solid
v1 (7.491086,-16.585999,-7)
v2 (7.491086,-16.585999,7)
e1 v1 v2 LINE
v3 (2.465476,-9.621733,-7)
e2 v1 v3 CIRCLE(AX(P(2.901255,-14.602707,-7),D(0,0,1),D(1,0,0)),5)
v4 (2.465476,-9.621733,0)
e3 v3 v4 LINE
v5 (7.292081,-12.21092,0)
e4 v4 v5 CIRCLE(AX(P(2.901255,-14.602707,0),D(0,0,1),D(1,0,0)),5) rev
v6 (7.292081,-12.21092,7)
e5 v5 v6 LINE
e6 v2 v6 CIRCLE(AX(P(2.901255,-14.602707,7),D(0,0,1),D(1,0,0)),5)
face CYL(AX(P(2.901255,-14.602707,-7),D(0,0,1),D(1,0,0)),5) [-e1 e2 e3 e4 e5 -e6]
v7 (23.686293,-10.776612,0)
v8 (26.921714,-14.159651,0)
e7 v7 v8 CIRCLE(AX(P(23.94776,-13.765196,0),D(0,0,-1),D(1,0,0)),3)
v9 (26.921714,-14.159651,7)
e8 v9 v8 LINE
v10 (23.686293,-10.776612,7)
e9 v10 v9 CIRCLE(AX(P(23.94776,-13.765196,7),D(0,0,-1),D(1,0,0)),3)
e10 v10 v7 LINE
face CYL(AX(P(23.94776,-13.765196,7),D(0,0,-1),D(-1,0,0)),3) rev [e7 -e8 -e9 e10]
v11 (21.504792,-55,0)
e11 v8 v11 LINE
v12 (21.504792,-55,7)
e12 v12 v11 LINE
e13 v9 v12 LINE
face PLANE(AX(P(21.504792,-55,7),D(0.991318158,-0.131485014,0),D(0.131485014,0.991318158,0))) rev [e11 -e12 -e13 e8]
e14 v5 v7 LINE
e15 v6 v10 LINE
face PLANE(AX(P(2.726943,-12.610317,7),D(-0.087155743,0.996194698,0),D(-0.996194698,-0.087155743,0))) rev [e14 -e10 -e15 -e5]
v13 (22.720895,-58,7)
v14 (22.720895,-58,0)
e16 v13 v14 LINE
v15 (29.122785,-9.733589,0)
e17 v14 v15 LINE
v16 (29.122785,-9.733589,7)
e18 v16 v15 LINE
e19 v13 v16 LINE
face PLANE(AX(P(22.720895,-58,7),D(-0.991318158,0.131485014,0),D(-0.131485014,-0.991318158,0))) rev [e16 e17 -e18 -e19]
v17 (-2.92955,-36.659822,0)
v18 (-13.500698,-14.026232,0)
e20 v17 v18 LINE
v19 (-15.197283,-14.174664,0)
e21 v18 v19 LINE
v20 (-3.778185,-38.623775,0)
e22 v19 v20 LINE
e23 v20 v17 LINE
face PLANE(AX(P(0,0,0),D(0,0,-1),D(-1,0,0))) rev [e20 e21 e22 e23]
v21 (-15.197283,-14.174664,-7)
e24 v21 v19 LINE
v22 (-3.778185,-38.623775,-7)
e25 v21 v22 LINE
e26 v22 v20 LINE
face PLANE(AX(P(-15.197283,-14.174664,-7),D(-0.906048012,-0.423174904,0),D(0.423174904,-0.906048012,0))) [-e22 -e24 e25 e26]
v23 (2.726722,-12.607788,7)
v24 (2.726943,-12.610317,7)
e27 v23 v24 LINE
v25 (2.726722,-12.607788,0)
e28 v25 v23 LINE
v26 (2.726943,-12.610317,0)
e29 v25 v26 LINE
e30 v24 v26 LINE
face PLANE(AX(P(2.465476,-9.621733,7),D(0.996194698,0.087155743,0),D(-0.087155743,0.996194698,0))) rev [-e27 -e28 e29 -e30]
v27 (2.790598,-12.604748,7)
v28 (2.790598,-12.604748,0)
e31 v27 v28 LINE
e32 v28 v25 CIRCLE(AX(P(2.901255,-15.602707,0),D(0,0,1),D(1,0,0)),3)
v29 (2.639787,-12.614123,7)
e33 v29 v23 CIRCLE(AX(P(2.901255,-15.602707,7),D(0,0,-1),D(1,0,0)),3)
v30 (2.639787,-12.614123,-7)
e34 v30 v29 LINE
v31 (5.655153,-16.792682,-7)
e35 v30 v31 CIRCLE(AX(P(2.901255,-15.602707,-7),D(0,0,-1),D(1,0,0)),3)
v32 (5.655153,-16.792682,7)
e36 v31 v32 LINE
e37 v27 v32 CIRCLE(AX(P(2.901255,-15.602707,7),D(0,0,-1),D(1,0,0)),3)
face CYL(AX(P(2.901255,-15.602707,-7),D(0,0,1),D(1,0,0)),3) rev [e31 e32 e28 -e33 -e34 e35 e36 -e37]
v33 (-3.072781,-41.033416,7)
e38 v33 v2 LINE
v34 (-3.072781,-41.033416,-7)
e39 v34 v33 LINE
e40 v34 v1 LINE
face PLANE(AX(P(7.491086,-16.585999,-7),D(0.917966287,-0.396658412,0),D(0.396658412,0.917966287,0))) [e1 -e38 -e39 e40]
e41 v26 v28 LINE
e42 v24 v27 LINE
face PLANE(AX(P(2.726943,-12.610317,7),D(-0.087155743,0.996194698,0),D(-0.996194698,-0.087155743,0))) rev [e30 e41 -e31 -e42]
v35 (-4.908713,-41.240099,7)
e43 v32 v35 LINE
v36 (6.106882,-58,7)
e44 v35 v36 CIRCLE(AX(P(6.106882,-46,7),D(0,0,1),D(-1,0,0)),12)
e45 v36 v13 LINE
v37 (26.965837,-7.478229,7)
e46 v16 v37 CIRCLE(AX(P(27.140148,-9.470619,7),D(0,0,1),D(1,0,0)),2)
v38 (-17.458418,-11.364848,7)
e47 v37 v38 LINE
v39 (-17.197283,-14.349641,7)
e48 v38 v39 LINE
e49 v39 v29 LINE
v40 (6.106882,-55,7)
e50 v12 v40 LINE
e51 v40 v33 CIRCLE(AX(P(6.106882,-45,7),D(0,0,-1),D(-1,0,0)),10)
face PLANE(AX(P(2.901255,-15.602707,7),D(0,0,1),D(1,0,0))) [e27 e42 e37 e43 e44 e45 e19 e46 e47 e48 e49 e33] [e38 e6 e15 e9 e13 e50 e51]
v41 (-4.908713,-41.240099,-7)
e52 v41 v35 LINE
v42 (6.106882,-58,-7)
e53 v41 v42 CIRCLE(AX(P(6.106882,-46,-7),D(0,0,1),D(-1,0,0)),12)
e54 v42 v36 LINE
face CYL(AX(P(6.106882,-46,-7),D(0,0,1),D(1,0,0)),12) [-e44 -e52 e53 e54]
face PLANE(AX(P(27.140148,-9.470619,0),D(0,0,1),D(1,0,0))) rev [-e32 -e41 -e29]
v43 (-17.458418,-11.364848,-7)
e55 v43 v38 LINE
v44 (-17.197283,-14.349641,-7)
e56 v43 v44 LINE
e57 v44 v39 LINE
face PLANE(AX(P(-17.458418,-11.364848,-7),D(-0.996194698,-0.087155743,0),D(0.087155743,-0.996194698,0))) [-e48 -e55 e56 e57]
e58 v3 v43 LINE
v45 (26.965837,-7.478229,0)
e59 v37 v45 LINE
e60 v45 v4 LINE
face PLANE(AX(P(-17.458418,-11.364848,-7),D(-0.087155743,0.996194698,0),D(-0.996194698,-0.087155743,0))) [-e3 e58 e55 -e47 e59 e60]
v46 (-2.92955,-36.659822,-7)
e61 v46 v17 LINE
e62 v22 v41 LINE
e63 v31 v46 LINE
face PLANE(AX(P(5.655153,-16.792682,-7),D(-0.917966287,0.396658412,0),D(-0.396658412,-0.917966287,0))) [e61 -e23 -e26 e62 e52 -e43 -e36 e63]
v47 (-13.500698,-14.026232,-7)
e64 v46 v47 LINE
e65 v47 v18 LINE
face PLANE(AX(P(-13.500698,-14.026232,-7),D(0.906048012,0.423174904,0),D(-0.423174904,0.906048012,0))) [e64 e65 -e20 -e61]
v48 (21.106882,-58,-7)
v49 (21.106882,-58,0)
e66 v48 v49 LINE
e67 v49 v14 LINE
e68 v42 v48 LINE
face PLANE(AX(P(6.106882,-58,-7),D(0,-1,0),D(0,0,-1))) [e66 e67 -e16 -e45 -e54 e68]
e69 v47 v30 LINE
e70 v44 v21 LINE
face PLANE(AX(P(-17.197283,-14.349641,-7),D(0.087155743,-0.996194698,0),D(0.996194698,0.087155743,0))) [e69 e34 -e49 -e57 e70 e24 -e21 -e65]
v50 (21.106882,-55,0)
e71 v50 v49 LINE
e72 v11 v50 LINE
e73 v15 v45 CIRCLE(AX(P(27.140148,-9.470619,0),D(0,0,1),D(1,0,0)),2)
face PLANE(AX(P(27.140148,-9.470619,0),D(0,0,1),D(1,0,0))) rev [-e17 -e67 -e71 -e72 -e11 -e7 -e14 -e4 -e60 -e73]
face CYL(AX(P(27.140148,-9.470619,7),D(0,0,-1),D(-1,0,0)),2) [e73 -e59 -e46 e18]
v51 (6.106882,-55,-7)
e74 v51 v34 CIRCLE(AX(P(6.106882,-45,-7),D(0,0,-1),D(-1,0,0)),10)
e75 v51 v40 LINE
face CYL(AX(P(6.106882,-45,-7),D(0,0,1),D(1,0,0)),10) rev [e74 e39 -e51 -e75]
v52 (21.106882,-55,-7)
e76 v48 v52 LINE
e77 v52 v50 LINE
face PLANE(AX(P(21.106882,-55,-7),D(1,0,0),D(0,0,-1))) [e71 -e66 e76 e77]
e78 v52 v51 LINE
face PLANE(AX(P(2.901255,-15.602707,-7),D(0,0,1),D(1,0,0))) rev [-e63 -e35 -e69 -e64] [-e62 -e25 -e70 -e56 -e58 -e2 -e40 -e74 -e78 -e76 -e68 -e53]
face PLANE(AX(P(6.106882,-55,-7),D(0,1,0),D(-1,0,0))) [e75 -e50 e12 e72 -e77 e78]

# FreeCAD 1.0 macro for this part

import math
import FreeCAD as App
import Part
import Sketcher
from FreeCAD import Vector
Q = App.Units.Quantity

doc = App.newDocument("Part")
body = doc.addObject("PartDesign::Body", "Body")

# Sketch on XY plane
sketch1 = doc.addObject("Sketcher::SketchObject", "Sketch")
body.addObject(sketch1)
sketch1.AttachmentSupport = (doc.XY_Plane, [""])
sketch1.MapMode = "FlatFace"
sketch1.addGeometry([
    Part.LineSegment(Vector(2.5, -9.6, 0), Vector(-17.5, -11.4, 0)),  # 0
    Part.LineSegment(Vector(-17.5, -11.4, 0), Vector(-17.2, -14.3, 0)),  # 1
    Part.LineSegment(Vector(-17.2, -14.3, 0), Vector(2.6, -12.6, 0)),  # 2
    Part.ArcOfCircle(Part.Circle(Vector(2.9, -15.6, 0), Vector(0, 0, 1), 3), math.radians(-23), math.radians(95)),  # 3
    Part.LineSegment(Vector(5.7, -16.8, 0), Vector(-4.9, -41.2, 0)),  # 4
    Part.ArcOfCircle(Part.Circle(Vector(6.1, -46, 0), Vector(0, 0, 1), 12), math.radians(157), math.radians(270)),  # 5
    Part.LineSegment(Vector(6.1, -58, 0), Vector(21.1, -58, 0)),  # 6
    Part.LineSegment(Vector(21.1, -58, 0), Vector(21.1, -55, 0)),  # 7
    Part.LineSegment(Vector(21.1, -55, 0), Vector(6.1, -55, 0)),  # 8
    Part.ArcOfCircle(Part.Circle(Vector(6.1, -45, 0), Vector(0, 0, 1), 10), math.radians(157), math.radians(270)),  # 9
    Part.LineSegment(Vector(-3.1, -41, 0), Vector(7.5, -16.6, 0)),  # 10
    Part.ArcOfCircle(Part.Circle(Vector(2.9, -14.6, 0), Vector(0, 0, 1), 5), math.radians(-23), math.radians(95)),  # 11
], False)
sketch1.addConstraint([
    Sketcher.Constraint("Coincident", 0, 2, 1, 1),
    Sketcher.Constraint("Coincident", 1, 2, 2, 1),
    Sketcher.Constraint("Tangent", 2, 2, 3, 2),
    Sketcher.Constraint("Tangent", 3, 1, 4, 1),
    Sketcher.Constraint("Tangent", 4, 2, 5, 1),
    Sketcher.Constraint("Tangent", 5, 2, 6, 1),
    Sketcher.Constraint("Coincident", 6, 2, 7, 1),
    Sketcher.Constraint("Coincident", 7, 2, 8, 1),
    Sketcher.Constraint("Tangent", 8, 2, 9, 2),
    Sketcher.Constraint("Tangent", 9, 1, 10, 1),
    Sketcher.Constraint("Tangent", 10, 2, 11, 1),
    Sketcher.Constraint("Tangent", 11, 2, 0, 1),
    Sketcher.Constraint("Horizontal", 6),
    Sketcher.Constraint("Vertical", 7),
    Sketcher.Constraint("Horizontal", 8),
    Sketcher.Constraint("Perpendicular", 0, 1),
    Sketcher.Constraint("Perpendicular", 1, 2),
    Sketcher.Constraint("Parallel", 4, 10),
    Sketcher.Constraint("Vertical", 5, 3, 9, 3),
    Sketcher.Constraint("Vertical", 3, 3, 11, 3),
    Sketcher.Constraint("Equal", 4, 10),
    Sketcher.Constraint("Radius", 3, 3.0),
    Sketcher.Constraint("Radius", 5, 12.0),
    Sketcher.Constraint("Radius", 9, 10.0),
    Sketcher.Constraint("DistanceX", 6, 1, 6, 2, 15.0),
    Sketcher.Constraint("DistanceY", 7, 1, 7, 2, 3.0),
    Sketcher.Constraint("Angle", 0, Q("-175 deg")),
    Sketcher.Constraint("Distance", 0, 20.0),
    Sketcher.Constraint("DistanceY", 5, 3, -1, 1, 46.0),
    Sketcher.Constraint("DistanceY", 10, 2, -1, 1, 16.585999),
    Sketcher.Constraint("DistanceY", 4, 2, -1, 1, 41.240099),
    Sketcher.Constraint("DistanceX", -1, 1, 5, 3, 6.106882),
])
pad1 = doc.addObject("PartDesign::Pad", "Pad")
body.addObject(pad1)
pad1.Profile = sketch1
pad1.Type = "TwoLengths"
pad1.Length = 7
pad1.Length2 = 7

# Sketch on XY plane
sketch2 = doc.addObject("Sketcher::SketchObject", "Sketch001")
body.addObject(sketch2)
sketch2.AttachmentSupport = (doc.XY_Plane, [""])
sketch2.MapMode = "FlatFace"
sketch2.addGeometry([
    Part.LineSegment(Vector(26.965837, -7.478229, 0), Vector(2.465476, -9.621733, 0)),  # 0
    Part.LineSegment(Vector(2.465476, -9.621733, 0), Vector(2.726943, -12.610317, 0)),  # 1
    Part.LineSegment(Vector(2.726943, -12.610317, 0), Vector(23.686293, -10.776612, 0)),  # 2
    Part.ArcOfCircle(Part.Circle(Vector(23.94776, -13.765196, 0), Vector(0, 0, 1), 3), math.radians(-7.555414), math.radians(95)),  # 3
    Part.LineSegment(Vector(26.921714, -14.159651, 0), Vector(21.504792, -55, 0)),  # 4
    Part.LineSegment(Vector(21.504792, -55, 0), Vector(21.106882, -55, 0)),  # 5
    Part.LineSegment(Vector(21.106882, -55, 0), Vector(21.106882, -58, 0)),  # 6
    Part.LineSegment(Vector(21.106882, -58, 0), Vector(22.720895, -58, 0)),  # 7
    Part.LineSegment(Vector(22.720895, -58, 0), Vector(29.122785, -9.733589, 0)),  # 8
    Part.ArcOfCircle(Part.Circle(Vector(27.140148, -9.470619, 0), Vector(0, 0, 1), 2), math.radians(-7.555414), math.radians(95)),  # 9
], False)
sketch2.addConstraint([
    Sketcher.Constraint("Coincident", 0, 2, 1, 1),
    Sketcher.Constraint("Coincident", 1, 2, 2, 1),
    Sketcher.Constraint("Coincident", 2, 2, 3, 2),
    Sketcher.Constraint("Coincident", 3, 1, 4, 1),
    Sketcher.Constraint("Coincident", 4, 2, 5, 1),
    Sketcher.Constraint("Coincident", 5, 2, 6, 1),
    Sketcher.Constraint("Coincident", 6, 2, 7, 1),
    Sketcher.Constraint("Coincident", 7, 2, 8, 1),
    Sketcher.Constraint("Coincident", 8, 2, 9, 1),
    Sketcher.Constraint("Coincident", 9, 2, 0, 1),
    Sketcher.Constraint("Horizontal", 5),
    Sketcher.Constraint("Vertical", 6),
    Sketcher.Constraint("Horizontal", 7),
    Sketcher.Constraint("Radius", 3, 3.0),
    Sketcher.Constraint("Radius", 9, 2.0),
    Sketcher.Constraint("DistanceY", 6, 2, 6, 1, 3.0),
    Sketcher.Constraint("Distance", 1, 3.0),
    Sketcher.Constraint("DistanceY", 4, 2, -1, 1, 55.0),
    Sketcher.Constraint("DistanceX", 5, 2, 5, 1, 0.39791),
    Sketcher.Constraint("DistanceY", 1, 2, 9, 3, 3.139699),
    Sketcher.Constraint("DistanceX", 4, 2, 2, 2, 2.181501),
    Sketcher.Constraint("Distance", 0, 24.593948),
    Sketcher.Constraint("Distance", 2, 21.039411),
    Sketcher.Constraint("DistanceX", 7, 1, 7, 2, 1.614013),
    Sketcher.Constraint("DistanceX", -1, 1, 3, 3, 23.94776),
    Sketcher.Constraint("DistanceX", -1, 1, 9, 3, 27.140148),
    Sketcher.Constraint("DistanceY", 9, 3, -1, 1, 9.470619),
    Sketcher.Constraint("DistanceY", 2, 2, -1, 1, 10.776612),
    Sketcher.Constraint("DistanceY", 3, 1, -1, 1, 14.159651),
    Sketcher.Constraint("DistanceX", -1, 1, 4, 2, 21.504792),
    Sketcher.Constraint("DistanceY", 8, 2, -1, 1, 9.733589),
    Sketcher.Constraint("DistanceY", 9, 2, -1, 1, 7.478229),
])
pad2 = doc.addObject("PartDesign::Pad", "Pad001")
body.addObject(pad2)
pad2.Profile = sketch2
pad2.Length = 7

# Sketch on XY plane
sketch3 = doc.addObject("Sketcher::SketchObject", "Sketch002")
body.addObject(sketch3)
sketch3.AttachmentSupport = (doc.XY_Plane, [""])
sketch3.MapMode = "FlatFace"
sketch3.addGeometry([
    Part.LineSegment(Vector(-15.2, -14.2, 0), Vector(-3.8, -38.6, 0)),
    Part.LineSegment(Vector(-3.8, -38.6, 0), Vector(-2.9, -36.7, 0)),
    Part.LineSegment(Vector(-2.9, -36.7, 0), Vector(-13.5, -14, 0)),
    Part.LineSegment(Vector(-13.5, -14, 0), Vector(-15.2, -14.2, 0)),
], False)
sketch3.addConstraint([
    Sketcher.Constraint("Coincident", 0, 2, 1, 1),
    Sketcher.Constraint("Coincident", 1, 2, 2, 1),
    Sketcher.Constraint("Coincident", 2, 2, 3, 1),
    Sketcher.Constraint("Coincident", 3, 2, 0, 1),
    Sketcher.Constraint("Parallel", 0, 2),
    Sketcher.Constraint("Angle", 3, Q("-175 deg")),
    Sketcher.Constraint("Distance", 1, 2.139461),
    Sketcher.Constraint("DistanceX", 1, 2, -1, 1, 2.92955),
    Sketcher.Constraint("DistanceY", 1, 2, 2, 2, 22.63359),
    Sketcher.Constraint("DistanceY", 3, 2, 2, 2, 0.148432),
    Sketcher.Constraint("DistanceY", 0, 2, 3, 2, 24.449111),
    Sketcher.Constraint("DistanceY", 0, 2, -1, 1, 38.623775),
])
pad3 = doc.addObject("PartDesign::Pad", "Pad002")
body.addObject(pad3)
pad3.Profile = sketch3
pad3.Length = 7
pad3.Reversed = True

doc.recompute()
